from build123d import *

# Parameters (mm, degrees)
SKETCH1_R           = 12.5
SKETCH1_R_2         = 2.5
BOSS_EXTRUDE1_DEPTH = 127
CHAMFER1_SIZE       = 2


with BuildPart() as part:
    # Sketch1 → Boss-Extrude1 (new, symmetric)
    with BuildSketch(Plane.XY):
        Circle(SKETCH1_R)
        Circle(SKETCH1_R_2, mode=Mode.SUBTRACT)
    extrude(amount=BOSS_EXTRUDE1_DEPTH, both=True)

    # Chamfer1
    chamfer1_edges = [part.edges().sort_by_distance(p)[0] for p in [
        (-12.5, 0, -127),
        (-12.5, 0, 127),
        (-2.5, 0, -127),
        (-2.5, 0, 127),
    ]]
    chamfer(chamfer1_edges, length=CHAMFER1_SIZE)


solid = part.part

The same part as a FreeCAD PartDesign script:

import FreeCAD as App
import Part
import Sketcher
Q = App.Units.Quantity


def edges_at(feature, points):
    """Names of the edges that pass closest to the given points."""
    edges = feature.Shape.Edges
    near = lambda p: min(range(len(edges)), key=lambda i: edges[i].distToShape(Part.Vertex(*p))[0])
    return sorted({f"Edge{near(p) + 1}" for p in points})

doc = App.newDocument("Part")
body = doc.addObject("PartDesign::Body", "Body")

# Sketch on XY plane
sketch1 = body.newObject("Sketcher::SketchObject", "Sketch")
sketch1.AttachmentSupport = (doc.getObject("XY_Plane"), [""])
sketch1.MapMode = "FlatFace"
sketch1.addGeometry([
    Part.Circle(App.Vector(0, 0, 0), App.Vector(0, 0, 1), 12.5),
    Part.Circle(App.Vector(0, 0, 0), App.Vector(0, 0, 1), 2.5),
], False)
sketch1.addConstraint([
    Sketcher.Constraint("Coincident", 0, 3, -1, 1),
    Sketcher.Constraint("Coincident", 1, 3, -1, 1),
    Sketcher.Constraint("Diameter", 0, Q("25 mm")),
    Sketcher.Constraint("Diameter", 1, Q("5 mm")),
])
pad1 = body.newObject("PartDesign::Pad", "Pad")
pad1.Profile = sketch1
pad1.Length = 254
pad1.Midplane = True
doc.recompute()

chamfer = body.newObject("PartDesign::Chamfer", "Chamfer")
chamfer.Base = (pad1, edges_at(pad1, [
    (-12.5, 0, -127),
    (-12.5, 0, 127),
    (-2.5, 0, -127),
    (-2.5, 0, 127),
]))
chamfer.Size = 2

doc.recompute()
